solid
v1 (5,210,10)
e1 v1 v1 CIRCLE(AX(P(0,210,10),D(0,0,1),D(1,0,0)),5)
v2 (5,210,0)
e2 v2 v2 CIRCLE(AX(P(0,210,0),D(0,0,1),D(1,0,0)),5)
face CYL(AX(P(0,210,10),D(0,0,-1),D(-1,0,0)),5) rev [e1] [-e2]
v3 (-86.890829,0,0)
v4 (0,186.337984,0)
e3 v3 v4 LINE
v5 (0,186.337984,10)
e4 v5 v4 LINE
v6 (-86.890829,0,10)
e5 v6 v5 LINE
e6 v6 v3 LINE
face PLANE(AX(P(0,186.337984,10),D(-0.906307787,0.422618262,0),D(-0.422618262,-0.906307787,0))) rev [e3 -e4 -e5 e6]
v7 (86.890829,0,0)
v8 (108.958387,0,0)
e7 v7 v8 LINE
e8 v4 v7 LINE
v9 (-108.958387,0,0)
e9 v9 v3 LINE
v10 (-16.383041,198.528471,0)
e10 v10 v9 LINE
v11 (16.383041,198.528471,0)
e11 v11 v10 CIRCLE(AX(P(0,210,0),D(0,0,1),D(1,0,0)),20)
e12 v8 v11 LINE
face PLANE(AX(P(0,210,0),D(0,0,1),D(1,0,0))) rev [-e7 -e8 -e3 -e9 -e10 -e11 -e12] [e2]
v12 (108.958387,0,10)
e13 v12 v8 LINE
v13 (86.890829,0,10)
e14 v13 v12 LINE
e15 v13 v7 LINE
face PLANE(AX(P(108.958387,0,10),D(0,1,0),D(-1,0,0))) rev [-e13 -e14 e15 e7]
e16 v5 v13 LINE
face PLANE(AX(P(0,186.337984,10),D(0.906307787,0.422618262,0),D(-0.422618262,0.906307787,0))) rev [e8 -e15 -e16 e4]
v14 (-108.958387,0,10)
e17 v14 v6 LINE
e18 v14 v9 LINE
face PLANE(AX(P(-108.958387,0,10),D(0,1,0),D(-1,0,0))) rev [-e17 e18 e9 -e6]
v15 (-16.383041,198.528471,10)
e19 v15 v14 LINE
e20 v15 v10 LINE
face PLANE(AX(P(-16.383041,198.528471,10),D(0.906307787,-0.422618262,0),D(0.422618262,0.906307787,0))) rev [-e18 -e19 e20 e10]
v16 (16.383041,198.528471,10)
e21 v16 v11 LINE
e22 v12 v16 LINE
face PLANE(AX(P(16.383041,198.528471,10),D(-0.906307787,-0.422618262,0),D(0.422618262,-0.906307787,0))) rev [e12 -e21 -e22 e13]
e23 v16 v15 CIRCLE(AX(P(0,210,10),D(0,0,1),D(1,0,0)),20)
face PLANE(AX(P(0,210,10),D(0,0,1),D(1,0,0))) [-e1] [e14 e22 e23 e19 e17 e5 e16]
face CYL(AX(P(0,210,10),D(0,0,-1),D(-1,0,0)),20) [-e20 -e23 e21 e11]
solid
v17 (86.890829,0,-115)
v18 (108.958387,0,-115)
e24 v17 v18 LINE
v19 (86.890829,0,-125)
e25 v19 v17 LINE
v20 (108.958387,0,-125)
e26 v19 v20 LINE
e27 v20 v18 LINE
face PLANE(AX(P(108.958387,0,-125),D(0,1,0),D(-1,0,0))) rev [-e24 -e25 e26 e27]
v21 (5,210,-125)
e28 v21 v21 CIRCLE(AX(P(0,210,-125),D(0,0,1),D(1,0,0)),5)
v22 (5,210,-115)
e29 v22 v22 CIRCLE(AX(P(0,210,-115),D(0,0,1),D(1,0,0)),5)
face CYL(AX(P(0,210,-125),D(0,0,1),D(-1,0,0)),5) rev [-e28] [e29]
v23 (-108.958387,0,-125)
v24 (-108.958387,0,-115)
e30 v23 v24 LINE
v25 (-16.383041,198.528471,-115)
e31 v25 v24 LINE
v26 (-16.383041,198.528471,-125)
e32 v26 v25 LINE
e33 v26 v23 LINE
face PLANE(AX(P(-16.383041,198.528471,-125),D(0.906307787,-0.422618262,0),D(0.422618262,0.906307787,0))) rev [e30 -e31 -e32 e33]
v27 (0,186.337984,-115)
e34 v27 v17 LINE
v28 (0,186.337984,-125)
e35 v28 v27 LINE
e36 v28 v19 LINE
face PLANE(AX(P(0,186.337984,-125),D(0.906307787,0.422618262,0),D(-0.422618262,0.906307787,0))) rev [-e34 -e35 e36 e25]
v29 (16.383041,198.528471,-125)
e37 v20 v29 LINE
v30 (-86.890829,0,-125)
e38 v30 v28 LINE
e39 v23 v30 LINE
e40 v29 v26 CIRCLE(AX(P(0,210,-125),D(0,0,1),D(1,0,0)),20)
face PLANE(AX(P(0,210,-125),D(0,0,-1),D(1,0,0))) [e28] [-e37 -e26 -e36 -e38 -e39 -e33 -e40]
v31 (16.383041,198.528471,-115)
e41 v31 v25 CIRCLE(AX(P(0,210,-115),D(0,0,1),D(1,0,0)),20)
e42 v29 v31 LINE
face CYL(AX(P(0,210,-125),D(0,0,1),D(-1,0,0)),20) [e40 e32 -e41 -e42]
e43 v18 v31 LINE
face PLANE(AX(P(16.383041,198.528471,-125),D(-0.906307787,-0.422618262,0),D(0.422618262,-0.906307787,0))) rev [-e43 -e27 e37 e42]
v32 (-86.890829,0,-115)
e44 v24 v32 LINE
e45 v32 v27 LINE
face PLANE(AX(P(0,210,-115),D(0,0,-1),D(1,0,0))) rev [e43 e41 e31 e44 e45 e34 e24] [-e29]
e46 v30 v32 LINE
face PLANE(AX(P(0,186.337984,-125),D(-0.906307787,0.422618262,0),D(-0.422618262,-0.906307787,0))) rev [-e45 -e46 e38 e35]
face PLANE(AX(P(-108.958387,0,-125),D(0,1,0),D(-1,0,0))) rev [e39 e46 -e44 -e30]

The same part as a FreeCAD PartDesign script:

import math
import FreeCAD as App
import Part
import Sketcher
Q = App.Units.Quantity

doc = App.newDocument("Part")
body = doc.addObject("PartDesign::Body", "Body")

sketch1 = doc.addObject("Sketcher::SketchObject", "Sketch")
body.addObject(sketch1)
sketch1.AttachmentSupport = (doc.XY_Plane, [""])
sketch1.MapMode = "FlatFace"
sketch1.addGeometry([
    Part.LineSegment(App.Vector(-16, 199, 0), App.Vector(-109, 0, 0)),
    Part.LineSegment(App.Vector(-109, 0, 0), App.Vector(-87, 0, 0)),
    Part.LineSegment(App.Vector(-87, 0, 0), App.Vector(0, 186, 0)),
    Part.LineSegment(App.Vector(0, 186, 0), App.Vector(87, 0, 0)),
    Part.LineSegment(App.Vector(87, 0, 0), App.Vector(109, 0, 0)),
    Part.LineSegment(App.Vector(109, 0, 0), App.Vector(16, 199, 0)),
    Part.ArcOfCircle(Part.Circle(App.Vector(0, 210, 0), App.Vector(0, 0, 1), 20), math.radians(-35), math.radians(215)),
    Part.Circle(App.Vector(0, 210, 0), App.Vector(0, 0, 1), 5),
], False)
sketch1.addConstraint([
    Sketcher.Constraint("Coincident", 0, 2, 1, 1),
    Sketcher.Constraint("Coincident", 1, 2, 2, 1),
    Sketcher.Constraint("Coincident", 2, 2, 3, 1),
    Sketcher.Constraint("Coincident", 3, 2, 4, 1),
    Sketcher.Constraint("Coincident", 4, 2, 5, 1),
    Sketcher.Constraint("Coincident", 5, 2, 6, 1),
    Sketcher.Constraint("Coincident", 6, 2, 0, 1),
    Sketcher.Constraint("Horizontal", 1),
    Sketcher.Constraint("Horizontal", 4),
    Sketcher.Constraint("Coincident", 7, 3, 6, 3),
    Sketcher.Constraint("Symmetric", 1, 2, 3, 2, -1, 1),
    Sketcher.Constraint("Symmetric", 0, 2, 4, 2, -2),
    Sketcher.Constraint("Symmetric", 5, 2, 6, 2, -2),
    Sketcher.Constraint("PointOnObject", 2, 2, -2),
    Sketcher.Constraint("Parallel", 0, 2),
    Sketcher.Constraint("Diameter", 7, Q("10 mm")),
    Sketcher.Constraint("Radius", 6, Q("20 mm")),
    Sketcher.Constraint("Angle", 0, Q("-115 deg")),
    Sketcher.Constraint("DistanceY", -1, 1, 6, 3, Q("210 mm")),
    Sketcher.Constraint("DistanceX", 1, 1, 1, 2, Q("22.067558 mm")),
    Sketcher.Constraint("Distance", 0, Q("219.051931 mm")),
])
pad1 = doc.addObject("PartDesign::Pad", "Pad")
body.addObject(pad1)
pad1.Profile = sketch1
pad1.Length = 10
body2 = doc.addObject("PartDesign::Body", "Body001")
doc.recompute()

mirroring = doc.addObject("Part::Mirroring", "Mirroring")
mirroring.Source = body
mirroring.Base = App.Vector(0, 0, -57.5)
mirroring.Normal = App.Vector(0, 0, -1)
body2.BaseFeature = mirroring
doc.recompute()
mirroring.Visibility = False

doc.recompute()
